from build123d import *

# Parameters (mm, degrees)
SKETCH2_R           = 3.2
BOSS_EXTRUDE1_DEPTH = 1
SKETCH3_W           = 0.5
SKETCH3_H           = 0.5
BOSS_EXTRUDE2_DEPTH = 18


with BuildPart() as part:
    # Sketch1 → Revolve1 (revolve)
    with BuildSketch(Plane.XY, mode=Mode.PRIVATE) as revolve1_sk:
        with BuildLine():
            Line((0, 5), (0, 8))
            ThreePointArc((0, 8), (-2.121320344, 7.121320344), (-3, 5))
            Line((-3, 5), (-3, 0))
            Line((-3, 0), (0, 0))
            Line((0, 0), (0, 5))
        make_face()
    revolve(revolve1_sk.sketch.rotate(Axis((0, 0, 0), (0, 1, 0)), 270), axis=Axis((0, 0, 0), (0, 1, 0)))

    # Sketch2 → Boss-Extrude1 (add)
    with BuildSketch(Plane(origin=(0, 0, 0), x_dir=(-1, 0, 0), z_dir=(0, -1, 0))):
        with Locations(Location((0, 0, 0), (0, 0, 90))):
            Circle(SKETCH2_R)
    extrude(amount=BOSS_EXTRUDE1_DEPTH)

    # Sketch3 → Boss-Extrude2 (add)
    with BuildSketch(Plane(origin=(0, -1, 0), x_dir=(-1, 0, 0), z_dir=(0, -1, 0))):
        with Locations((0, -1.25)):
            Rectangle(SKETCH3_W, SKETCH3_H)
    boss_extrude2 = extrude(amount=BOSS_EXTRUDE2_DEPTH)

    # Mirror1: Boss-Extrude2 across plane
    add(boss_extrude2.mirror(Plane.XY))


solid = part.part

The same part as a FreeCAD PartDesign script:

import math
import FreeCAD as App
import Part
import Sketcher
from FreeCAD import Vector

doc = App.newDocument("Part")
body = doc.addObject("PartDesign::Body", "Body")

# Sketch on XY plane
sketch1 = body.newObject("Sketcher::SketchObject", "Sketch")
sketch1.AttachmentSupport = (doc.getObject("XY_Plane"), [""])
sketch1.MapMode = "FlatFace"
sketch1.addGeometry(Part.ArcOfCircle(Part.Circle(Vector(0, 5, 0), Vector(0, 0, 1), 3), math.radians(90), math.radians(180)), False)
sketch1.addGeometry(Part.LineSegment(Vector(-3, 5, 0), Vector(-3, 0, 0)), False)
sketch1.addGeometry(Part.LineSegment(Vector(-3, 0, 0), Vector(0, 0, 0)), False)
sketch1.addGeometry(Part.LineSegment(Vector(0, 0, 0), Vector(0, 8, 0)), False)
sketch1.addConstraint(Sketcher.Constraint("Tangent", 0, 2, 1, 1))
sketch1.addConstraint(Sketcher.Constraint("Coincident", 1, 2, 2, 1))
sketch1.addConstraint(Sketcher.Constraint("Coincident", 2, 2, 3, 1))
sketch1.addConstraint(Sketcher.Constraint("Coincident", 3, 2, 0, 1))
sketch1.addConstraint(Sketcher.Constraint("Vertical", 1))
sketch1.addConstraint(Sketcher.Constraint("Horizontal", 2))
sketch1.addConstraint(Sketcher.Constraint("Vertical", 3))
sketch1.addConstraint(Sketcher.Constraint("Coincident", 2, 2, -1, 1))
sketch1.addConstraint(Sketcher.Constraint("PointOnObject", 0, 3, -2))
sketch1.addConstraint(Sketcher.Constraint("Radius", 0, 3.0))
sketch1.addConstraint(Sketcher.Constraint("DistanceY", 1, 2, 1, 1, 5.0))
revolution = body.newObject("PartDesign::Revolution", "Revolution")
revolution.Profile = sketch1
revolution.ReferenceAxis = (sketch1, ["V_Axis"])
revolution.Angle = 360

# Sketch on XZ plane
sketch2 = body.newObject("Sketcher::SketchObject", "Sketch001")
sketch2.AttachmentSupport = (doc.getObject("XZ_Plane"), [""])
sketch2.MapMode = "FlatFace"
sketch2.addGeometry(Part.Circle(Vector(0, 0, 0), Vector(0, 0, 1), 3.2), False)
sketch2.addConstraint(Sketcher.Constraint("Coincident", 0, 3, -1, 1))
sketch2.addConstraint(Sketcher.Constraint("Diameter", 0, 6.4))
pad1 = body.newObject("PartDesign::Pad", "Pad")
pad1.Profile = sketch2
pad1.Length = 1

# Sketch on XZ plane
sketch3 = body.newObject("Sketcher::SketchObject", "Sketch002")
sketch3.AttachmentSupport = (doc.getObject("XZ_Plane"), [""])
sketch3.MapMode = "FlatFace"
sketch3.AttachmentOffset = App.Placement(Vector(0, 0, 1), App.Rotation())
sketch3.addGeometry(Part.LineSegment(Vector(0.2, 1, 0), Vector(0.2, 1.5, 0)), False)
sketch3.addGeometry(Part.LineSegment(Vector(0.2, 1.5, 0), Vector(-0.2, 1.5, 0)), False)
sketch3.addGeometry(Part.LineSegment(Vector(-0.2, 1.5, 0), Vector(-0.2, 1, 0)), False)
sketch3.addGeometry(Part.LineSegment(Vector(-0.2, 1, 0), Vector(0.2, 1, 0)), False)
sketch3.addConstraint(Sketcher.Constraint("Coincident", 0, 2, 1, 1))
sketch3.addConstraint(Sketcher.Constraint("Coincident", 1, 2, 2, 1))
sketch3.addConstraint(Sketcher.Constraint("Coincident", 2, 2, 3, 1))
sketch3.addConstraint(Sketcher.Constraint("Coincident", 3, 2, 0, 1))
sketch3.addConstraint(Sketcher.Constraint("Vertical", 0))
sketch3.addConstraint(Sketcher.Constraint("Horizontal", 1))
sketch3.addConstraint(Sketcher.Constraint("Vertical", 2))
sketch3.addConstraint(Sketcher.Constraint("Horizontal", 3))
sketch3.addConstraint(Sketcher.Constraint("Equal", 3, 0))
sketch3.addConstraint(Sketcher.Constraint("DistanceX", 1, 2, 1, 1, 0.5))
sketch3.addConstraint(Sketcher.Constraint("DistanceY", -1, 1, 2, 2, 1.0))
sketch3.addConstraint(Sketcher.Constraint("DistanceX", -1, 1, 0, 2, 0.25))
pad2 = body.newObject("PartDesign::Pad", "Pad001")
pad2.Profile = sketch3
pad2.Length = 18
doc.recompute()

mirrored = body.newObject("PartDesign::Mirrored", "Mirrored")
mirrored.Originals = [pad2]
mirrored.MirrorPlane = (doc.getObject("XY_Plane"), [""])
body.Tip = mirrored

doc.recompute()
